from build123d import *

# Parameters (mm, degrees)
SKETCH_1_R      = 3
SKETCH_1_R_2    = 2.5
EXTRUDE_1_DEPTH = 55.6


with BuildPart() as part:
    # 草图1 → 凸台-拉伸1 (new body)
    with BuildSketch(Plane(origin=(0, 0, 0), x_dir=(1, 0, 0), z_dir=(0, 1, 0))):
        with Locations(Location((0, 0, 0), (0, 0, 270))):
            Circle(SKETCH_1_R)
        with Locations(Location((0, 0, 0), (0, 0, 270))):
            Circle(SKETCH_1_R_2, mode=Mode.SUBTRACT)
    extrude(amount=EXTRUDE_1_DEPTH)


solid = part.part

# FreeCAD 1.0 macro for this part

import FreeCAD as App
import Part
import Sketcher
from FreeCAD import Vector

doc = App.newDocument("Part")
body = doc.addObject("PartDesign::Body", "Body")

sketch1 = body.newObject("Sketcher::SketchObject", "Sketch")
sketch1.AttachmentSupport = (doc.getObject("XZ_Plane"), [""])
sketch1.MapMode = "FlatFace"
sketch1.addGeometry(Part.Circle(Vector(0, 0, 0), Vector(0, 0, 1), 3), False)
sketch1.addGeometry(Part.Circle(Vector(0, 0, 0), Vector(0, 0, 1), 2.5), False)
sketch1.addConstraint(Sketcher.Constraint("Coincident", 0, 3, -1, 1))
sketch1.addConstraint(Sketcher.Constraint("Coincident", 1, 3, -1, 1))
sketch1.addConstraint(Sketcher.Constraint("Diameter", 0, 6.0))
sketch1.addConstraint(Sketcher.Constraint("Diameter", 1, 5.0))
pad1 = body.newObject("PartDesign::Pad", "Pad")
pad1.Profile = sketch1
pad1.Length = 55.6
pad1.Reversed = True

doc.recompute()
